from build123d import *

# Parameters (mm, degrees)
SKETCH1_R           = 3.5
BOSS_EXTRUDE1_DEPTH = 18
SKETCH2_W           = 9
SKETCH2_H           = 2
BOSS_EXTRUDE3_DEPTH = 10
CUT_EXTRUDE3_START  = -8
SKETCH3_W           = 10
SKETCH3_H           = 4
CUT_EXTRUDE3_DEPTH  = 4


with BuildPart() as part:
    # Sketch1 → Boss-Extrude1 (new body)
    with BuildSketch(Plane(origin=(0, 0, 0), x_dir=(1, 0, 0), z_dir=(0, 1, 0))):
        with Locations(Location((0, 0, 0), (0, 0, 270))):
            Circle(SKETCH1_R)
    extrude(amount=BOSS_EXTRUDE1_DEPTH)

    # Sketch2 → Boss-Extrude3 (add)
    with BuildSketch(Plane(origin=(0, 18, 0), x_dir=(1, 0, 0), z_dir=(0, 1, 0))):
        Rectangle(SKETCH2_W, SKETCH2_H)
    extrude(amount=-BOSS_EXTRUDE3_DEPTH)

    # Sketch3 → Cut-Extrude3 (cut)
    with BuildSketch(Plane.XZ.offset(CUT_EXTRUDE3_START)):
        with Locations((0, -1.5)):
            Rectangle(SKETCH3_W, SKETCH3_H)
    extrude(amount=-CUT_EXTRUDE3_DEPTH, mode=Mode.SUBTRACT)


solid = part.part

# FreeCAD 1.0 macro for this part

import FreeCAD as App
import Part
import Sketcher
Q = App.Units.Quantity

doc = App.newDocument("Part")
params = doc.addObject("Spreadsheet::Sheet", "Params")
for row, (alias, value) in enumerate([
    ("sketch1_diameter", "7 mm"),
    ("pad1_length", "18 mm"),
    ("sketch2_width", "9 mm"),
    ("sketch2_height", "2 mm"),
    ("pad2_length", "10 mm"),
    ("sketch3_width", "10 mm"),
    ("sketch3_height", "4 mm"),
    ("pocket1_length", "4 mm"),
], start=1):
    params.set(f"A{row}", alias)
    params.set(f"B{row}", "=" + value)
    params.setAlias(f"B{row}", alias)

body = doc.addObject("PartDesign::Body", "Body")

# Sketch on XZ plane
sketch1 = body.newObject("Sketcher::SketchObject", "Sketch")
sketch1.AttachmentSupport = (doc.getObject("XZ_Plane"), [""])
sketch1.MapMode = "FlatFace"
sketch1.addGeometry(Part.Circle(App.Vector(0, 0, 0), App.Vector(0, 0, 1), 3.5), False)
sketch1.addConstraint(Sketcher.Constraint("Coincident", 0, 3, -1, 1))
sketch1.addConstraint(Sketcher.Constraint("Diameter", 0, Q("7 mm")))
sketch1.setExpression("Constraints[1]", "Params.sketch1_diameter")
pad1 = body.newObject("PartDesign::Pad", "Pad")
pad1.Profile = sketch1
pad1.setExpression("Length", "Params.pad1_length")
pad1.Reversed = True

# Sketch on XZ plane
sketch2 = body.newObject("Sketcher::SketchObject", "Sketch001")
sketch2.AttachmentSupport = (doc.getObject("XZ_Plane"), [""])
sketch2.MapMode = "FlatFace"
sketch2.AttachmentOffset = App.Placement(App.Vector(0, 0, -18), App.Rotation())
sketch2.addGeometry(Part.LineSegment(App.Vector(-4.5, -1, 0), App.Vector(-4.5, 1, 0)), False)
sketch2.addGeometry(Part.LineSegment(App.Vector(-4.5, 1, 0), App.Vector(4.5, 1, 0)), False)
sketch2.addGeometry(Part.LineSegment(App.Vector(4.5, 1, 0), App.Vector(4.5, -1, 0)), False)
sketch2.addGeometry(Part.LineSegment(App.Vector(4.5, -1, 0), App.Vector(-4.5, -1, 0)), False)
sketch2.addConstraint(Sketcher.Constraint("Coincident", 0, 2, 1, 1))
sketch2.addConstraint(Sketcher.Constraint("Coincident", 1, 2, 2, 1))
sketch2.addConstraint(Sketcher.Constraint("Coincident", 2, 2, 3, 1))
sketch2.addConstraint(Sketcher.Constraint("Coincident", 3, 2, 0, 1))
sketch2.addConstraint(Sketcher.Constraint("Vertical", 0))
sketch2.addConstraint(Sketcher.Constraint("Horizontal", 1))
sketch2.addConstraint(Sketcher.Constraint("Vertical", 2))
sketch2.addConstraint(Sketcher.Constraint("Horizontal", 3))
sketch2.addConstraint(Sketcher.Constraint("Symmetric", 0, 2, 2, 2, -1, 1))
sketch2.addConstraint(Sketcher.Constraint("DistanceX", 1, 1, 1, 2, Q("9 mm")))
sketch2.addConstraint(Sketcher.Constraint("DistanceY", 0, 1, 0, 2, Q("2 mm")))
sketch2.setExpression("Constraints[9]", "Params.sketch2_width")
sketch2.setExpression("Constraints[10]", "Params.sketch2_height")
pad2 = body.newObject("PartDesign::Pad", "Pad001")
pad2.Profile = sketch2
pad2.setExpression("Length", "Params.pad2_length")

# Sketch on XZ plane
sketch3 = body.newObject("Sketcher::SketchObject", "Sketch002")
sketch3.AttachmentSupport = (doc.getObject("XZ_Plane"), [""])
sketch3.MapMode = "FlatFace"
sketch3.AttachmentOffset = App.Placement(App.Vector(0, 0, -8), App.Rotation())
sketch3.addGeometry(Part.LineSegment(App.Vector(-5, 0.5, 0), App.Vector(-5, -3.5, 0)), False)
sketch3.addGeometry(Part.LineSegment(App.Vector(-5, -3.5, 0), App.Vector(5, -3.5, 0)), False)
sketch3.addGeometry(Part.LineSegment(App.Vector(5, -3.5, 0), App.Vector(5, 0.5, 0)), False)
sketch3.addGeometry(Part.LineSegment(App.Vector(5, 0.5, 0), App.Vector(-5, 0.5, 0)), False)
sketch3.addConstraint(Sketcher.Constraint("Coincident", 0, 2, 1, 1))
sketch3.addConstraint(Sketcher.Constraint("Coincident", 1, 2, 2, 1))
sketch3.addConstraint(Sketcher.Constraint("Coincident", 2, 2, 3, 1))
sketch3.addConstraint(Sketcher.Constraint("Coincident", 3, 2, 0, 1))
sketch3.addConstraint(Sketcher.Constraint("Vertical", 0))
sketch3.addConstraint(Sketcher.Constraint("Horizontal", 1))
sketch3.addConstraint(Sketcher.Constraint("Vertical", 2))
sketch3.addConstraint(Sketcher.Constraint("Horizontal", 3))
sketch3.addConstraint(Sketcher.Constraint("DistanceX", 1, 1, 1, 2, Q("10 mm")))
sketch3.addConstraint(Sketcher.Constraint("DistanceY", 0, 2, 0, 1, Q("4 mm")))
sketch3.addConstraint(Sketcher.Constraint("DistanceX", 0, 2, -1, 1, Q("5 mm")))
sketch3.addConstraint(Sketcher.Constraint("DistanceY", 0, 2, -1, 1, Q("3.5 mm")))
sketch3.setExpression("Constraints[8]", "Params.sketch3_width")
sketch3.setExpression("Constraints[9]", "Params.sketch3_height")
pocket1 = body.newObject("PartDesign::Pocket", "Pocket")
pocket1.Profile = sketch3
pocket1.setExpression("Length", "Params.pocket1_length")

doc.recompute()
